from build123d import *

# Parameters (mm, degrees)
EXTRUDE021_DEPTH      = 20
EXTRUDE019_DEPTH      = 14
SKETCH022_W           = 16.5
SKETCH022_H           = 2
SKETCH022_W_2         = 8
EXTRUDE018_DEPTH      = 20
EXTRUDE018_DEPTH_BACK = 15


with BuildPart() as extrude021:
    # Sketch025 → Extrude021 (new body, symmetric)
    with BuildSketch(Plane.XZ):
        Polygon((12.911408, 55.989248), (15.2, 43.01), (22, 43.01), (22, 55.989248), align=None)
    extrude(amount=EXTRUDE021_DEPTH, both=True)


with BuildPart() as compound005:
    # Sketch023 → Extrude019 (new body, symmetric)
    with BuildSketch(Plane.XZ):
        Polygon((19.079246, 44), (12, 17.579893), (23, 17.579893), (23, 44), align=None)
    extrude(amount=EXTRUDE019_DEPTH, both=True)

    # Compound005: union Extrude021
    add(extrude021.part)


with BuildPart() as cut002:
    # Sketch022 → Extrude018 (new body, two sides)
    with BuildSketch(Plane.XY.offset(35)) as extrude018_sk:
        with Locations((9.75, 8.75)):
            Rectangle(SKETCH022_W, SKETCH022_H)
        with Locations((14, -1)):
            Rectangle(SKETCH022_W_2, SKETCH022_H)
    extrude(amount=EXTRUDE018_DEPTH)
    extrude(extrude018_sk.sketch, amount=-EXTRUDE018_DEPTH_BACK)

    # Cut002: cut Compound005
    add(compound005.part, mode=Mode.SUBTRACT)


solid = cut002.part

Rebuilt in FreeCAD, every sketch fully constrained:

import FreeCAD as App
import Part
import Sketcher

V = App.Vector
Q = App.Units.Quantity

doc = App.newDocument("Part")
body = doc.addObject("PartDesign::Body", "Body")

sketch1 = body.newObject("Sketcher::SketchObject", "Sketch")
sketch1.AttachmentSupport = (doc.getObject("XZ_Plane"), [""])
sketch1.MapMode = "FlatFace"
sketch1.addGeometry(Part.LineSegment(V(13, 56, 0), V(15, 43, 0)), False)
sketch1.addGeometry(Part.LineSegment(V(15, 43, 0), V(22, 43, 0)), False)
sketch1.addGeometry(Part.LineSegment(V(22, 43, 0), V(22, 56, 0)), False)
sketch1.addGeometry(Part.LineSegment(V(22, 56, 0), V(13, 56, 0)), False)
sketch1.addConstraint(Sketcher.Constraint("Coincident", 0, 2, 1, 1))
sketch1.addConstraint(Sketcher.Constraint("Coincident", 1, 2, 2, 1))
sketch1.addConstraint(Sketcher.Constraint("Coincident", 2, 2, 3, 1))
sketch1.addConstraint(Sketcher.Constraint("Coincident", 3, 2, 0, 1))
sketch1.addConstraint(Sketcher.Constraint("Horizontal", 1))
sketch1.addConstraint(Sketcher.Constraint("Vertical", 2))
sketch1.addConstraint(Sketcher.Constraint("Horizontal", 3))
sketch1.addConstraint(Sketcher.Constraint("Angle", 0, Q("-79.999998 deg")))
sketch1.addConstraint(Sketcher.Constraint("DistanceX", 1, 1, 1, 2, 6.8))
sketch1.addConstraint(Sketcher.Constraint("DistanceX", -1, 1, 1, 2, 22.0))
sketch1.addConstraint(Sketcher.Constraint("DistanceY", -1, 1, 0, 2, 43.01))
sketch1.addConstraint(Sketcher.Constraint("DistanceY", 2, 1, 2, 2, 12.979248))
pad1 = body.newObject("PartDesign::Pad", "Pad")
pad1.Profile = sketch1
pad1.Length = 40
pad1.Midplane = True
body2 = doc.addObject("PartDesign::Body", "Body001")

sketch2 = body2.newObject("Sketcher::SketchObject", "Sketch001")
sketch2.AttachmentSupport = (doc.getObject("XZ_Plane001"), [""])
sketch2.MapMode = "FlatFace"
sketch2.addGeometry(Part.LineSegment(V(19.1, 44, 0), V(12, 17.6, 0)), False)
sketch2.addGeometry(Part.LineSegment(V(12, 17.6, 0), V(23, 17.6, 0)), False)
sketch2.addGeometry(Part.LineSegment(V(23, 17.6, 0), V(23, 44, 0)), False)
sketch2.addGeometry(Part.LineSegment(V(23, 44, 0), V(19.1, 44, 0)), False)
sketch2.addConstraint(Sketcher.Constraint("Coincident", 0, 2, 1, 1))
sketch2.addConstraint(Sketcher.Constraint("Coincident", 1, 2, 2, 1))
sketch2.addConstraint(Sketcher.Constraint("Coincident", 2, 2, 3, 1))
sketch2.addConstraint(Sketcher.Constraint("Coincident", 3, 2, 0, 1))
sketch2.addConstraint(Sketcher.Constraint("Horizontal", 1))
sketch2.addConstraint(Sketcher.Constraint("Vertical", 2))
sketch2.addConstraint(Sketcher.Constraint("Horizontal", 3))
sketch2.addConstraint(Sketcher.Constraint("DistanceX", 1, 1, 1, 2, 11.0))
sketch2.addConstraint(Sketcher.Constraint("Angle", 0, Q("-104.999999 deg")))
sketch2.addConstraint(Sketcher.Constraint("DistanceX", -1, 1, 0, 2, 12.0))
sketch2.addConstraint(Sketcher.Constraint("DistanceY", -1, 1, 2, 2, 44.0))
sketch2.addConstraint(Sketcher.Constraint("DistanceX", 3, 2, 3, 1, 3.920754))
pad2 = body2.newObject("PartDesign::Pad", "Pad001")
pad2.Profile = sketch2
pad2.Length = 28
pad2.Midplane = True
doc.recompute()

boolean = body2.newObject("PartDesign::Boolean", "Boolean")
boolean.Type = "Fuse"
boolean.addObjects([body])
body3 = doc.addObject("PartDesign::Body", "Body002")
body3.AllowCompound = True

sketch3 = body3.newObject("Sketcher::SketchObject", "Sketch002")
sketch3.AttachmentSupport = (doc.getObject("XY_Plane002"), [""])
sketch3.MapMode = "FlatFace"
sketch3.AttachmentOffset = App.Placement(V(0, 0, 35), App.Rotation())
sketch3.addGeometry(Part.LineSegment(V(1.5, 9.8, 0), V(1.5, 7.8, 0)), False)
sketch3.addGeometry(Part.LineSegment(V(1.5, 7.8, 0), V(18, 7.8, 0)), False)
sketch3.addGeometry(Part.LineSegment(V(18, 7.8, 0), V(18, 9.8, 0)), False)
sketch3.addGeometry(Part.LineSegment(V(18, 9.8, 0), V(1.5, 9.8, 0)), False)
sketch3.addGeometry(Part.LineSegment(V(10, 0, 0), V(10, -2, 0)), False)
sketch3.addGeometry(Part.LineSegment(V(10, -2, 0), V(18, -2, 0)), False)
sketch3.addGeometry(Part.LineSegment(V(18, -2, 0), V(18, 0, 0)), False)
sketch3.addGeometry(Part.LineSegment(V(18, 0, 0), V(10, 0, 0)), False)
sketch3.addConstraint(Sketcher.Constraint("Coincident", 0, 2, 1, 1))
sketch3.addConstraint(Sketcher.Constraint("Coincident", 1, 2, 2, 1))
sketch3.addConstraint(Sketcher.Constraint("Coincident", 2, 2, 3, 1))
sketch3.addConstraint(Sketcher.Constraint("Coincident", 3, 2, 0, 1))
sketch3.addConstraint(Sketcher.Constraint("Coincident", 4, 2, 5, 1))
sketch3.addConstraint(Sketcher.Constraint("Coincident", 5, 2, 6, 1))
sketch3.addConstraint(Sketcher.Constraint("Coincident", 6, 2, 7, 1))
sketch3.addConstraint(Sketcher.Constraint("Coincident", 7, 2, 4, 1))
sketch3.addConstraint(Sketcher.Constraint("Vertical", 0))
sketch3.addConstraint(Sketcher.Constraint("Horizontal", 1))
sketch3.addConstraint(Sketcher.Constraint("Vertical", 2))
sketch3.addConstraint(Sketcher.Constraint("Horizontal", 3))
sketch3.addConstraint(Sketcher.Constraint("Vertical", 4))
sketch3.addConstraint(Sketcher.Constraint("Horizontal", 5))
sketch3.addConstraint(Sketcher.Constraint("Vertical", 6))
sketch3.addConstraint(Sketcher.Constraint("Horizontal", 7))
sketch3.addConstraint(Sketcher.Constraint("PointOnObject", 6, 2, -1))
sketch3.addConstraint(Sketcher.Constraint("Vertical", 2, 2, 5, 2))
sketch3.addConstraint(Sketcher.Constraint("Equal", 2, 4))
sketch3.addConstraint(Sketcher.Constraint("DistanceX", 5, 1, 5, 2, 8.0))
sketch3.addConstraint(Sketcher.Constraint("DistanceY", 0, 2, 0, 1, 2.0))
sketch3.addConstraint(Sketcher.Constraint("DistanceX", 1, 1, 1, 2, 16.5))
sketch3.addConstraint(Sketcher.Constraint("DistanceX", -1, 1, 1, 2, 18.0))
sketch3.addConstraint(Sketcher.Constraint("DistanceY", -1, 1, 0, 2, 7.75))
pad3 = body3.newObject("PartDesign::Pad", "Pad002")
pad3.Profile = sketch3
pad3.Type = "TwoLengths"
pad3.Length = 20
pad3.Length2 = 15
doc.recompute()

boolean2 = body3.newObject("PartDesign::Boolean", "Boolean001")
boolean2.Type = "Cut"
boolean2.addObjects([body2])

doc.recompute()
